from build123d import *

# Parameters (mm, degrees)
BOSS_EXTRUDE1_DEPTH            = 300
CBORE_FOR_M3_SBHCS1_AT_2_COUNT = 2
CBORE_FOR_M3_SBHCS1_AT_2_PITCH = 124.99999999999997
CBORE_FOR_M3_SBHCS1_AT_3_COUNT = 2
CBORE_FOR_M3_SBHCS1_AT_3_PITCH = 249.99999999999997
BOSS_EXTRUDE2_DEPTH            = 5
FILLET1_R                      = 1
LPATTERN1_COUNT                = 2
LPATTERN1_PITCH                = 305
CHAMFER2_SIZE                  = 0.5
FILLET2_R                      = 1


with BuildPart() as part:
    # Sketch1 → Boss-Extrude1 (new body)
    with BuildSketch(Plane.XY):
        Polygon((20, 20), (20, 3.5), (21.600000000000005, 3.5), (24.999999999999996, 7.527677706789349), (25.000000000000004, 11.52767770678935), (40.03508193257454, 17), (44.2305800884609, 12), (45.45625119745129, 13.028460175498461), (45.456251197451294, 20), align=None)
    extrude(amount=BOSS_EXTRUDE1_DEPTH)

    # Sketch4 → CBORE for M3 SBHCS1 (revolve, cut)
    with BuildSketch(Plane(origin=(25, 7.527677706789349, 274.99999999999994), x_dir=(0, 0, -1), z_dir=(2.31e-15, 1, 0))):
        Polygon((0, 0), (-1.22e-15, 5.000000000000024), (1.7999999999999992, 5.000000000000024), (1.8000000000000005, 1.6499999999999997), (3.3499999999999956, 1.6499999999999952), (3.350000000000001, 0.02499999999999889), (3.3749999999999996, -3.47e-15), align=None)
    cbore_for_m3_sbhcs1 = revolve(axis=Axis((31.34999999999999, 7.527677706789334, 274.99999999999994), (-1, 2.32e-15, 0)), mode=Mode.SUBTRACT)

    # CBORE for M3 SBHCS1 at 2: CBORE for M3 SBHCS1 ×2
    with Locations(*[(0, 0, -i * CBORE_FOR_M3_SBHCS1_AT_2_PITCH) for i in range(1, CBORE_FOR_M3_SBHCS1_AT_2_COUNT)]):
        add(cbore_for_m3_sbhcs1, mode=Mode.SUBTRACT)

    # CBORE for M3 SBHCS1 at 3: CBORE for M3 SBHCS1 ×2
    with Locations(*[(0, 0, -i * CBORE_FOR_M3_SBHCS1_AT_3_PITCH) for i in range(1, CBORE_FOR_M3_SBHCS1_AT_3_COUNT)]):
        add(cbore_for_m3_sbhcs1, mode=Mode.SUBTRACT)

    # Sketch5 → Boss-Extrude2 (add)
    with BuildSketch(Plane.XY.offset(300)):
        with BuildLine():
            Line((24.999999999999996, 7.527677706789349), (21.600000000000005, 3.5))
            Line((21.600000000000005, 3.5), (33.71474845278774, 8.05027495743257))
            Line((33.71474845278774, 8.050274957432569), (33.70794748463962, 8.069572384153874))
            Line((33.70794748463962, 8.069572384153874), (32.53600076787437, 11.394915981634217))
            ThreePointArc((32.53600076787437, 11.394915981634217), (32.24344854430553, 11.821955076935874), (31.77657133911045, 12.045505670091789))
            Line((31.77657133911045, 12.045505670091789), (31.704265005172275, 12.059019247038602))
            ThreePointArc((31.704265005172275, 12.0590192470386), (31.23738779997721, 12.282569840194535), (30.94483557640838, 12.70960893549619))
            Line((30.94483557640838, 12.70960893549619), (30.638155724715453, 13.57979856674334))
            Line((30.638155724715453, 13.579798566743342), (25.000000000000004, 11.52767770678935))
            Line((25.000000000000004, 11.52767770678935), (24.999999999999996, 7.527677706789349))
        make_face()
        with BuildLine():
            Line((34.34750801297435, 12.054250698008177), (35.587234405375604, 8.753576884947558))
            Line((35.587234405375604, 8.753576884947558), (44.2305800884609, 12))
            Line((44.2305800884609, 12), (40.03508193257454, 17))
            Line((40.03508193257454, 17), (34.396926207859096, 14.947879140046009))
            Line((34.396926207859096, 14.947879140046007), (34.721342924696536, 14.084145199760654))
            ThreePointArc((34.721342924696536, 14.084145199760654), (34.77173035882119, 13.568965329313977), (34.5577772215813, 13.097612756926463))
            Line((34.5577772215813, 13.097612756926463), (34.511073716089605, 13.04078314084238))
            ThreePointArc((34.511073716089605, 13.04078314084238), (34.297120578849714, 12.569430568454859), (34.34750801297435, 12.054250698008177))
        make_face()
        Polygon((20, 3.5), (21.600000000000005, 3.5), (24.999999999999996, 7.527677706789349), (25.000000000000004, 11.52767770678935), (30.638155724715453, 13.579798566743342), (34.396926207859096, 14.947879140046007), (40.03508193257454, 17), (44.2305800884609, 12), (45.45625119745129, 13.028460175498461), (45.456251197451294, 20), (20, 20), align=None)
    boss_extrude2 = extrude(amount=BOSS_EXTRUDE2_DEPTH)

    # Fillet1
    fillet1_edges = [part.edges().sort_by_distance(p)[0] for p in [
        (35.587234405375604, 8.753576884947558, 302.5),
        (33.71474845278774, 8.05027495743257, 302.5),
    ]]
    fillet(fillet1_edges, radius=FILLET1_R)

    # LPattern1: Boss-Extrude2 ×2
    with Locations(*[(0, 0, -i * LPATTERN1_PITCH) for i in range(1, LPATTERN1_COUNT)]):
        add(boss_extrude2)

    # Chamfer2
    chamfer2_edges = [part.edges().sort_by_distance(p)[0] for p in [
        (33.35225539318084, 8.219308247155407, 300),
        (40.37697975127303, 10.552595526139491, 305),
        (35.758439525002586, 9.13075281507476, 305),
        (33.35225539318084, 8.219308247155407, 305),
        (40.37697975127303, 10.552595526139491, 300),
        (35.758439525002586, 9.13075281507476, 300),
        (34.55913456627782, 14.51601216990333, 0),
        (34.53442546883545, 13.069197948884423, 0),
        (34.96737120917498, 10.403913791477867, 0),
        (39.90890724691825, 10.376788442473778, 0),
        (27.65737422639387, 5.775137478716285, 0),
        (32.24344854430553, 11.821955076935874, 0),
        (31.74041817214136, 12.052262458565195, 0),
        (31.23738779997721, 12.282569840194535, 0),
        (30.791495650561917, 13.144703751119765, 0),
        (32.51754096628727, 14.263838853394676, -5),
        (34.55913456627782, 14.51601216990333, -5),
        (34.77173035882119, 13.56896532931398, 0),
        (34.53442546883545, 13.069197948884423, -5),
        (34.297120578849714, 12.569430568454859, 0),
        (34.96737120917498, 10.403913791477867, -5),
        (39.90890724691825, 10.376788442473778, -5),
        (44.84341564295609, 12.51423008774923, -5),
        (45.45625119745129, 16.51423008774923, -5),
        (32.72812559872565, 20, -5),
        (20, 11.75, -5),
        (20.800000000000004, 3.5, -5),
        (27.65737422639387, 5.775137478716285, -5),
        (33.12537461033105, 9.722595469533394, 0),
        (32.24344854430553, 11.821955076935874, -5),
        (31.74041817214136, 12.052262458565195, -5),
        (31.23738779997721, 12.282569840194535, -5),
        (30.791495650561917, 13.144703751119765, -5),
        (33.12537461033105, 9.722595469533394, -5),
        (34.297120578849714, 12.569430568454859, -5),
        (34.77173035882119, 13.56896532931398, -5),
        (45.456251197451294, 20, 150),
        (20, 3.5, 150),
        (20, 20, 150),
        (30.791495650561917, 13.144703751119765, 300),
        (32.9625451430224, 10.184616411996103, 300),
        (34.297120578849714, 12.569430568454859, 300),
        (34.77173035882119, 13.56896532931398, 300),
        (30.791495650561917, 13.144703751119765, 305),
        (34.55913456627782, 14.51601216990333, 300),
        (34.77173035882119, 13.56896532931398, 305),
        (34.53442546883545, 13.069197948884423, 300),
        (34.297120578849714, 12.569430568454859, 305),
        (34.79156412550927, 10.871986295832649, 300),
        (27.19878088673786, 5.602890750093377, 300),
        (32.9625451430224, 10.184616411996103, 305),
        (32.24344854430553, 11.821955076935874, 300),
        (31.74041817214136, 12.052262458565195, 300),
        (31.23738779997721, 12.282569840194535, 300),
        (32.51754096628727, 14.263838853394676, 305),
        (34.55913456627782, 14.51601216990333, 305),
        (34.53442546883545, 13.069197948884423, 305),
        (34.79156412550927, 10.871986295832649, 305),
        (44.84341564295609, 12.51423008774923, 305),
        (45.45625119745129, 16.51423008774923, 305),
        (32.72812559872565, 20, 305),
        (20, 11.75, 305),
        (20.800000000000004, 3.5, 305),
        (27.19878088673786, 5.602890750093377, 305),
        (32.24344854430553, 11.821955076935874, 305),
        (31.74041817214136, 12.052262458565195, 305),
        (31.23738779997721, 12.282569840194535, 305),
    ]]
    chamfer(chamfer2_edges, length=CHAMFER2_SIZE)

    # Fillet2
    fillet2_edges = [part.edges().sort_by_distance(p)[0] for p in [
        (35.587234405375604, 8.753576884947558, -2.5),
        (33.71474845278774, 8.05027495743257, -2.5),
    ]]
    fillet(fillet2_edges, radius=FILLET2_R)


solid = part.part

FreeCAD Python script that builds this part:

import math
import FreeCAD as App
import Part
import Sketcher
from FreeCAD import Vector
Q = App.Units.Quantity


def edges_at(feature, points):
    """Names of the edges that pass closest to the given points."""
    edges = feature.Shape.Edges
    near = lambda p: min(range(len(edges)), key=lambda i: edges[i].distToShape(Part.Vertex(*p))[0])
    return sorted({f"Edge{near(p) + 1}" for p in points})


def add_polygon(sketch, points):
    """Adds a closed chain of lines whose ends are joined by coincident constraints."""
    first, n = sketch.GeometryCount, len(points)
    for a, b in zip(points, points[1:] + points[:1]):
        sketch.addGeometry(Part.LineSegment(App.Vector(*a, 0), App.Vector(*b, 0)), False)
    for i in range(n):
        sketch.addConstraint(Sketcher.Constraint("Coincident", first + i, 2, first + (i + 1) % n, 1))

doc = App.newDocument("Part")
body = doc.addObject("PartDesign::Body", "Body")

# Sketch on XY plane
sketch1 = body.newObject("Sketcher::SketchObject", "Sketch")
sketch1.AttachmentSupport = (doc.getObject("XY_Plane"), [""])
sketch1.MapMode = "FlatFace"
add_polygon(sketch1, [(20, 20), (20, 3.5), (21.6, 3.5), (25, 7.527678), (25, 11.527678), (40.035082, 17), (44.23058, 12), (45.456251, 13.02846), (45.456251, 20)])  # lines 0-8
sketch1.addConstraint(Sketcher.Constraint("Vertical", 0))
sketch1.addConstraint(Sketcher.Constraint("Horizontal", 1))
sketch1.addConstraint(Sketcher.Constraint("Vertical", 3))
sketch1.addConstraint(Sketcher.Constraint("Vertical", 7))
sketch1.addConstraint(Sketcher.Constraint("Horizontal", 8))
sketch1.addConstraint(Sketcher.Constraint("Perpendicular", 5, 6))
sketch1.addConstraint(Sketcher.Constraint("DistanceY", 3, 1, 3, 2, Q("4 mm")))
sketch1.addConstraint(Sketcher.Constraint("Angle", 4, Q("20 deg")))
sketch1.addConstraint(Sketcher.Constraint("Angle", 5, Q("-50 deg")))
sketch1.addConstraint(Sketcher.Constraint("Distance", 4, Q("16 mm")))
sketch1.addConstraint(Sketcher.Constraint("DistanceX", 1, 1, 1, 2, Q("1.6 mm")))
sketch1.addConstraint(Sketcher.Constraint("DistanceY", 0, 2, 0, 1, Q("16.5 mm")))
sketch1.addConstraint(Sketcher.Constraint("DistanceX", -1, 1, 0, 2, Q("20 mm")))
sketch1.addConstraint(Sketcher.Constraint("DistanceX", -1, 1, 2, 2, Q("25 mm")))
sketch1.addConstraint(Sketcher.Constraint("DistanceY", -1, 1, 4, 2, Q("17 mm")))
sketch1.addConstraint(Sketcher.Constraint("DistanceY", -1, 1, 5, 2, Q("12 mm")))
sketch1.addConstraint(Sketcher.Constraint("DistanceY", -1, 1, 7, 2, Q("20 mm")))
sketch1.addConstraint(Sketcher.Constraint("Distance", 6, Q("1.6 mm")))
pad1 = body.newObject("PartDesign::Pad", "Pad")
pad1.Profile = sketch1
pad1.Length = 300

# Sketch on XZ plane
sketch2 = body.newObject("Sketcher::SketchObject", "Sketch001")
sketch2.AttachmentSupport = (doc.getObject("XZ_Plane"), [""])
sketch2.MapMode = "FlatFace"
sketch2.AttachmentOffset = App.Placement(Vector(0, 0, -7.527678), App.Rotation())
add_polygon(sketch2, [(20, 275), (25, 275), (25, 271.625), (24.975, 271.65), (23.35, 271.65), (23.35, 273.2), (20, 273.2)])  # lines 0-6
sketch2.addGeometry(Part.LineSegment(Vector(25, 275, 0), Vector(20, 275, 0)), True)  # axis
sketch2.addConstraint(Sketcher.Constraint("Horizontal", 0))
sketch2.addConstraint(Sketcher.Constraint("Vertical", 1))
sketch2.addConstraint(Sketcher.Constraint("Horizontal", 3))
sketch2.addConstraint(Sketcher.Constraint("Vertical", 4))
sketch2.addConstraint(Sketcher.Constraint("Horizontal", 5))
sketch2.addConstraint(Sketcher.Constraint("Vertical", 6))
sketch2.addConstraint(Sketcher.Constraint("Horizontal", 7))
sketch2.addConstraint(Sketcher.Constraint("Coincident", 7, 1, 0, 2))
sketch2.addConstraint(Sketcher.Constraint("Vertical", 5, 2, 7, 2))
sketch2.addConstraint(Sketcher.Constraint("DistanceX", 0, 1, 0, 2, Q("5 mm")))
sketch2.addConstraint(Sketcher.Constraint("Angle", 2, Q("135 deg")))
sketch2.addConstraint(Sketcher.Constraint("DistanceY", 6, 1, 6, 2, Q("1.8 mm")))
sketch2.addConstraint(Sketcher.Constraint("DistanceX", -1, 1, 0, 2, Q("25 mm")))
sketch2.addConstraint(Sketcher.Constraint("DistanceY", -1, 1, 0, 2, Q("275 mm")))
sketch2.addConstraint(Sketcher.Constraint("DistanceX", 5, 2, 5, 1, Q("3.35 mm")))
sketch2.addConstraint(Sketcher.Constraint("DistanceY", 4, 1, 4, 2, Q("1.55 mm")))
sketch2.addConstraint(Sketcher.Constraint("DistanceX", 3, 2, 3, 1, Q("1.625 mm")))
groove = body.newObject("PartDesign::Groove", "Groove")
groove.Profile = sketch2
groove.ReferenceAxis = (sketch2, ["Axis0"])
groove.Angle = 360
doc.recompute()

linearpattern = body.newObject("PartDesign::LinearPattern", "LinearPattern")
linearpattern.Originals = [groove]
linearpattern.Direction = (doc.getObject("Z_Axis"), [""])
linearpattern.Mode = "offset"
linearpattern.Offset = 125
linearpattern.Occurrences = 2
linearpattern.Reversed = True
body.Tip = linearpattern
doc.recompute()

linearpattern2 = body.newObject("PartDesign::LinearPattern", "LinearPattern001")
linearpattern2.Originals = [groove]
linearpattern2.Direction = (doc.getObject("Z_Axis"), [""])
linearpattern2.Mode = "offset"
linearpattern2.Offset = 250
linearpattern2.Occurrences = 2
linearpattern2.Reversed = True
body.Tip = linearpattern2

# Sketch on XY plane
sketch3 = body.newObject("Sketcher::SketchObject", "Sketch002")
sketch3.AttachmentSupport = (doc.getObject("XY_Plane"), [""])
sketch3.MapMode = "FlatFace"
sketch3.AttachmentOffset = App.Placement(Vector(0, 0, 300), App.Rotation())
sketch3.addGeometry(Part.LineSegment(Vector(21.6, 3.5, 0), Vector(33.714748, 8.050275, 0)), False)
sketch3.addGeometry(Part.LineSegment(Vector(33.714748, 8.050275, 0), Vector(32.536001, 11.394916, 0)), False)
sketch3.addGeometry(Part.ArcOfCircle(Part.Circle(Vector(31.592859, 11.062526, 0), Vector(0, 0, 1), 1), math.radians(19.413923), math.radians(79.413923)), False)
sketch3.addGeometry(Part.LineSegment(Vector(31.776571, 12.045506, 0), Vector(31.704265, 12.059019, 0)), False)
sketch3.addGeometry(Part.ArcOfCircle(Part.Circle(Vector(31.887977, 13.041999, 0), Vector(0, 0, 1), 1), math.radians(-160.586077), math.radians(-100.586077)), False)
sketch3.addGeometry(Part.LineSegment(Vector(30.944836, 12.709609, 0), Vector(30.638156, 13.579799, 0)), False)
sketch3.addGeometry(Part.LineSegment(Vector(30.638156, 13.579799, 0), Vector(34.396926, 14.947879, 0)), False)
sketch3.addGeometry(Part.LineSegment(Vector(34.396926, 14.947879, 0), Vector(34.721343, 14.084145, 0)), False)
sketch3.addGeometry(Part.ArcOfCircle(Part.Circle(Vector(33.785198, 13.732531, 0), Vector(0, 0, 1), 1), math.radians(-39.413923), math.radians(20.586077)), False)
sketch3.addGeometry(Part.LineSegment(Vector(34.557777, 13.097613, 0), Vector(34.511074, 13.040783, 0)), False)
sketch3.addGeometry(Part.ArcOfCircle(Part.Circle(Vector(35.283653, 12.405865, 0), Vector(0, 0, 1), 1), math.radians(140.586077), math.radians(200.586077)), False)
sketch3.addGeometry(Part.LineSegment(Vector(34.347508, 12.054251, 0), Vector(35.587234, 8.753577, 0)), False)
sketch3.addGeometry(Part.LineSegment(Vector(35.587234, 8.753577, 0), Vector(44.23058, 12, 0)), False)
sketch3.addGeometry(Part.LineSegment(Vector(44.23058, 12, 0), Vector(45.456251, 13.02846, 0)), False)
sketch3.addGeometry(Part.LineSegment(Vector(45.456251, 13.02846, 0), Vector(45.456251, 20, 0)), False)
sketch3.addGeometry(Part.LineSegment(Vector(45.456251, 20, 0), Vector(20, 20, 0)), False)
sketch3.addGeometry(Part.LineSegment(Vector(20, 20, 0), Vector(20, 3.5, 0)), False)
sketch3.addGeometry(Part.LineSegment(Vector(20, 3.5, 0), Vector(21.6, 3.5, 0)), False)
sketch3.addConstraint(Sketcher.Constraint("Coincident", 0, 2, 1, 1))
sketch3.addConstraint(Sketcher.Constraint("Tangent", 1, 2, 2, 1))
sketch3.addConstraint(Sketcher.Constraint("Tangent", 2, 2, 3, 1))
sketch3.addConstraint(Sketcher.Constraint("Tangent", 3, 2, 4, 2))
sketch3.addConstraint(Sketcher.Constraint("Tangent", 4, 1, 5, 1))
sketch3.addConstraint(Sketcher.Constraint("Coincident", 5, 2, 6, 1))
sketch3.addConstraint(Sketcher.Constraint("Coincident", 6, 2, 7, 1))
sketch3.addConstraint(Sketcher.Constraint("Tangent", 7, 2, 8, 2))
sketch3.addConstraint(Sketcher.Constraint("Tangent", 8, 1, 9, 1))
sketch3.addConstraint(Sketcher.Constraint("Tangent", 9, 2, 10, 1))
sketch3.addConstraint(Sketcher.Constraint("Tangent", 10, 2, 11, 1))
sketch3.addConstraint(Sketcher.Constraint("Coincident", 11, 2, 12, 1))
sketch3.addConstraint(Sketcher.Constraint("Coincident", 12, 2, 13, 1))
sketch3.addConstraint(Sketcher.Constraint("Coincident", 13, 2, 14, 1))
sketch3.addConstraint(Sketcher.Constraint("Coincident", 14, 2, 15, 1))
sketch3.addConstraint(Sketcher.Constraint("Coincident", 15, 2, 16, 1))
sketch3.addConstraint(Sketcher.Constraint("Coincident", 16, 2, 17, 1))
sketch3.addConstraint(Sketcher.Constraint("Coincident", 17, 2, 0, 1))
sketch3.addConstraint(Sketcher.Constraint("Vertical", 14))
sketch3.addConstraint(Sketcher.Constraint("Horizontal", 15))
sketch3.addConstraint(Sketcher.Constraint("Vertical", 16))
sketch3.addConstraint(Sketcher.Constraint("Horizontal", 17))
sketch3.addConstraint(Sketcher.Constraint("Equal", 2, 4))
sketch3.addConstraint(Sketcher.Constraint("Equal", 4, 8))
sketch3.addConstraint(Sketcher.Constraint("Equal", 8, 10))
sketch3.addConstraint(Sketcher.Constraint("Parallel", 1, 5))
sketch3.addConstraint(Sketcher.Constraint("Perpendicular", 0, 7))
sketch3.addConstraint(Sketcher.Constraint("Parallel", 7, 11))
sketch3.addConstraint(Sketcher.Constraint("Perpendicular", 11, 12))
sketch3.addConstraint(Sketcher.Constraint("Equal", 5, 7))
sketch3.addConstraint(Sketcher.Constraint("Equal", 3, 9))
sketch3.addConstraint(Sketcher.Constraint("Radius", 2, Q("1 mm")))
sketch3.addConstraint(Sketcher.Constraint("Angle", 6, Q("20 deg")))
sketch3.addConstraint(Sketcher.Constraint("Angle", 13, Q("40 deg")))
sketch3.addConstraint(Sketcher.Constraint("Distance", 6, Q("4 mm")))
sketch3.addConstraint(Sketcher.Constraint("DistanceX", 17, 1, 17, 2, Q("1.6 mm")))
sketch3.addConstraint(Sketcher.Constraint("DistanceY", 16, 2, 16, 1, Q("16.5 mm")))
sketch3.addConstraint(Sketcher.Constraint("DistanceY", -1, 1, 12, 2, Q("12 mm")))
sketch3.addConstraint(Sketcher.Constraint("DistanceY", -1, 1, 14, 2, Q("20 mm")))
sketch3.addConstraint(Sketcher.Constraint("DistanceX", -1, 1, 15, 2, Q("20 mm")))
sketch3.addConstraint(Sketcher.Constraint("Distance", 13, Q("1.6 mm")))
sketch3.addConstraint(Sketcher.Constraint("DistanceY", -1, 1, 4, 3, Q("13.041999 mm")))
sketch3.addConstraint(Sketcher.Constraint("DistanceX", -1, 1, 1, 2, Q("32.536001 mm")))
sketch3.addConstraint(Sketcher.Constraint("DistanceX", 15, 2, 15, 1, Q("25.456251 mm")))
sketch3.addConstraint(Sketcher.Constraint("DistanceY", -1, 1, 5, 2, Q("13.579799 mm")))
sketch3.addConstraint(Sketcher.Constraint("DistanceY", 0, 2, 11, 2, Q("0.703302 mm")))
sketch3.addConstraint(Sketcher.Constraint("DistanceX", 10, 3, 13, 2, Q("10.172598 mm")))
sketch3.addConstraint(Sketcher.Constraint("Distance", 3, Q("0.073558 mm")))
sketch3.addConstraint(Sketcher.Constraint("Distance", 5, Q("0.92265 mm")))
sketch3.addConstraint(Sketcher.Constraint("DistanceX", -1, 1, 0, 2, Q("33.714748 mm")))
pad2 = body.newObject("PartDesign::Pad", "Pad001")
pad2.Profile = sketch3
pad2.Length = 5
doc.recompute()

fillet = body.newObject("PartDesign::Fillet", "Fillet")
fillet.Base = (pad2, edges_at(pad2, [(35.587, 8.754, 302.5), (33.715, 8.05, 302.5)]))
fillet.Radius = 1
doc.recompute()

linearpattern3 = body.newObject("PartDesign::LinearPattern", "LinearPattern002")
linearpattern3.Originals = [pad2]
linearpattern3.Direction = (doc.getObject("Z_Axis"), [""])
linearpattern3.Mode = "offset"
linearpattern3.Offset = 305
linearpattern3.Occurrences = 2
linearpattern3.Reversed = True
body.Tip = linearpattern3
doc.recompute()

chamfer = body.newObject("PartDesign::Chamfer", "Chamfer")
chamfer.Base = (linearpattern3, edges_at(linearpattern3, [
    (33.352, 8.219, 300),
    (40.377, 10.553, 305),
    (35.758, 9.131, 305),
    (33.352, 8.219, 305),
    (40.377, 10.553, 300),
    (35.758, 9.131, 300),
    (34.559, 14.516, 0),
    (34.534, 13.069, 0),
    (34.967, 10.404, 0),
    (39.909, 10.377, 0),
    (27.657, 5.775, 0),
    (32.243, 11.822, 0),
    (31.74, 12.052, 0),
    (31.237, 12.283, 0),
    (30.791, 13.145, 0),
    (32.518, 14.264, -5),
    (34.559, 14.516, -5),
    (34.772, 13.569, 0),
    (34.534, 13.069, -5),
    (34.297, 12.569, 0),
    (34.967, 10.404, -5),
    (39.909, 10.377, -5),
    (44.843, 12.514, -5),
    (45.456, 16.514, -5),
    (32.728, 20, -5),
    (20, 11.75, -5),
    (20.8, 3.5, -5),
    (27.657, 5.775, -5),
    (33.125, 9.723, 0),
    (32.243, 11.822, -5),
    (31.74, 12.052, -5),
    (31.237, 12.283, -5),
    (30.791, 13.145, -5),
    (33.125, 9.723, -5),
    (34.297, 12.569, -5),
    (34.772, 13.569, -5),
    (45.456, 20, 150),
    (20, 3.5, 150),
    (20, 20, 150),
    (30.791, 13.145, 300),
    (32.963, 10.185, 300),
    (34.297, 12.569, 300),
    (34.772, 13.569, 300),
    (30.791, 13.145, 305),
    (34.559, 14.516, 300),
    (34.772, 13.569, 305),
    (34.534, 13.069, 300),
    (34.297, 12.569, 305),
    (34.792, 10.872, 300),
    (27.199, 5.603, 300),
    (32.963, 10.185, 305),
    (32.243, 11.822, 300),
    (31.74, 12.052, 300),
    (31.237, 12.283, 300),
    (32.518, 14.264, 305),
    (34.559, 14.516, 305),
    (34.534, 13.069, 305),
    (34.792, 10.872, 305),
    (44.843, 12.514, 305),
    (45.456, 16.514, 305),
    (32.728, 20, 305),
    (20, 11.75, 305),
    (20.8, 3.5, 305),
    (27.199, 5.603, 305),
    (32.243, 11.822, 305),
    (31.74, 12.052, 305),
    (31.237, 12.283, 305),
]))
chamfer.Size = 0.5
doc.recompute()

fillet2 = body.newObject("PartDesign::Fillet", "Fillet001")
fillet2.Base = (chamfer, edges_at(chamfer, [(35.587, 8.754, -2.5), (33.715, 8.05, -2.5)]))
fillet2.Radius = 1

doc.recompute()
